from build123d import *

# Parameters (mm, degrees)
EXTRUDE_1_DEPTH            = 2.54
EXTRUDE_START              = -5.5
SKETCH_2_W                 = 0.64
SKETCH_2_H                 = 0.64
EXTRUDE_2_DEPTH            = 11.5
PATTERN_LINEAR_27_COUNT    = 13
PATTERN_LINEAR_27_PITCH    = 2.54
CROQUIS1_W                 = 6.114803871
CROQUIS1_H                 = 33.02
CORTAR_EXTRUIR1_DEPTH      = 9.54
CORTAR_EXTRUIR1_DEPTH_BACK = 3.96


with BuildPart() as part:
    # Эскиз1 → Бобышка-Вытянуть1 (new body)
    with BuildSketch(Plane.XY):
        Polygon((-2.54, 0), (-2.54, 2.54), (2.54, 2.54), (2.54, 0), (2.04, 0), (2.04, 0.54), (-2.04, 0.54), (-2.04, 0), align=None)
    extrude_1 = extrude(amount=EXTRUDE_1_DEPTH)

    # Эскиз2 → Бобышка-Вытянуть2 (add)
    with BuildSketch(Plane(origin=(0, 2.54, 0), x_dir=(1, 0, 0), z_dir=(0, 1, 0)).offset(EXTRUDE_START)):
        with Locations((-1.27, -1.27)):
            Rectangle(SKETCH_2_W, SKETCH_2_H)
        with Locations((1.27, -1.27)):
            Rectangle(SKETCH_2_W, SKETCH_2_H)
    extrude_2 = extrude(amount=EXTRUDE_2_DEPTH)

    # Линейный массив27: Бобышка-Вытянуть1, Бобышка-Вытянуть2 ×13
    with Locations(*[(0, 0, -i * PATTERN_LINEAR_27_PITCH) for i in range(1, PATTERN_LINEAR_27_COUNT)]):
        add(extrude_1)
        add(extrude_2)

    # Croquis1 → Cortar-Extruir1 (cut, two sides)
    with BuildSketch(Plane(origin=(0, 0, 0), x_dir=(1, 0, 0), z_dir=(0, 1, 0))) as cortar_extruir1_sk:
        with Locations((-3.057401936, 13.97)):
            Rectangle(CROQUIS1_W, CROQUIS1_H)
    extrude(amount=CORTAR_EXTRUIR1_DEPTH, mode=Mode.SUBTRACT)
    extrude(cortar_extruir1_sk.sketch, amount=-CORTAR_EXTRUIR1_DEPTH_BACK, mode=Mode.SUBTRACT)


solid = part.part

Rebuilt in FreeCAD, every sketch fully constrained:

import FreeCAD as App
import Part
import Sketcher

V = App.Vector
Q = App.Units.Quantity


def add_polygon(sketch, points):
    """Adds a closed chain of lines whose ends are joined by coincident constraints."""
    first, n = sketch.GeometryCount, len(points)
    for a, b in zip(points, points[1:] + points[:1]):
        sketch.addGeometry(Part.LineSegment(App.Vector(*a, 0), App.Vector(*b, 0)), False)
    for i in range(n):
        sketch.addConstraint(Sketcher.Constraint("Coincident", first + i, 2, first + (i + 1) % n, 1))

doc = App.newDocument("Part")
params = doc.addObject("Spreadsheet::Sheet", "Params")
for row, (alias, value) in enumerate([
    ("sketch1_width", "0.2 in"),
    ("sketch1_height", "0.1 in"),
    ("pad1_length", "0.1 in"),
    ("pad2_length", "11.5 mm"),
    ("linearpattern_pitch", "0.1 in"),
    ("sketch3_height", "1.3 in"),
], start=1):
    params.set(f"A{row}", alias)
    params.set(f"B{row}", "=" + value)
    params.setAlias(f"B{row}", alias)

body = doc.addObject("PartDesign::Body", "Body")

sketch1 = body.newObject("Sketcher::SketchObject", "Sketch")
sketch1.AttachmentSupport = (doc.getObject("XY_Plane"), [""])
sketch1.MapMode = "FlatFace"
add_polygon(sketch1, [(-2.54, 2.54), (-2.54, 0), (-2.04, 0), (-2.04, 0.54), (2.04, 0.54), (2.04, 0), (2.54, 0), (2.54, 2.54)])
sketch1.addConstraint(Sketcher.Constraint("Vertical", 0))
sketch1.addConstraint(Sketcher.Constraint("Horizontal", 1))
sketch1.addConstraint(Sketcher.Constraint("Vertical", 2))
sketch1.addConstraint(Sketcher.Constraint("Horizontal", 3))
sketch1.addConstraint(Sketcher.Constraint("Vertical", 4))
sketch1.addConstraint(Sketcher.Constraint("Horizontal", 5))
sketch1.addConstraint(Sketcher.Constraint("Vertical", 6))
sketch1.addConstraint(Sketcher.Constraint("Horizontal", 7))
sketch1.addConstraint(Sketcher.Constraint("Symmetric", 1, 2, 4, 2, -1, 1))
sketch1.addConstraint(Sketcher.Constraint("Symmetric", 0, 2, 5, 2, -2))
sketch1.addConstraint(Sketcher.Constraint("DistanceX", 7, 2, 7, 1, Q("0.2 in")))
sketch1.addConstraint(Sketcher.Constraint("DistanceY", 0, 2, 0, 1, Q("0.1 in")))
sketch1.addConstraint(Sketcher.Constraint("DistanceX", 1, 1, 1, 2, 0.5))
sketch1.addConstraint(Sketcher.Constraint("DistanceY", 2, 1, 2, 2, 0.54))
sketch1.setExpression("Constraints[18]", "Params.sketch1_width")
sketch1.setExpression("Constraints[19]", "Params.sketch1_height")
pad1 = body.newObject("PartDesign::Pad", "Pad")
pad1.Profile = sketch1
pad1.setExpression("Length", "Params.pad1_length")

sketch2 = body.newObject("Sketcher::SketchObject", "Sketch001")
sketch2.AttachmentSupport = (doc.getObject("XZ_Plane"), [""])
sketch2.MapMode = "FlatFace"
sketch2.AttachmentOffset = App.Placement(V(0, 0, 2.96), App.Rotation())
add_polygon(sketch2, [(-1.59, 0.95), (-1.59, 1.59), (-0.95, 1.59), (-0.95, 0.95)])
add_polygon(sketch2, [(0.95, 0.95), (0.95, 1.59), (1.59, 1.59), (1.59, 0.95)])
sketch2.addConstraint(Sketcher.Constraint("Vertical", 0))
sketch2.addConstraint(Sketcher.Constraint("Horizontal", 1))
sketch2.addConstraint(Sketcher.Constraint("Vertical", 2))
sketch2.addConstraint(Sketcher.Constraint("Horizontal", 3))
sketch2.addConstraint(Sketcher.Constraint("Vertical", 4))
sketch2.addConstraint(Sketcher.Constraint("Horizontal", 5))
sketch2.addConstraint(Sketcher.Constraint("Vertical", 6))
sketch2.addConstraint(Sketcher.Constraint("Horizontal", 7))
sketch2.addConstraint(Sketcher.Constraint("Symmetric", 1, 2, 4, 2, -2))
sketch2.addConstraint(Sketcher.Constraint("Symmetric", 3, 2, 6, 2, -2))
sketch2.addConstraint(Sketcher.Constraint("Equal", 7, 0))
sketch2.addConstraint(Sketcher.Constraint("DistanceX", 0, 2, 4, 2, Q("0.1 in")))
sketch2.addConstraint(Sketcher.Constraint("DistanceX", 1, 1, 1, 2, 0.64))
sketch2.addConstraint(Sketcher.Constraint("DistanceY", -1, 1, 0, 2, 1.59))
pad2 = body.newObject("PartDesign::Pad", "Pad001")
pad2.Profile = sketch2
pad2.setExpression("Length", "Params.pad2_length")
pad2.Reversed = True
doc.recompute()

linearpattern = body.newObject("PartDesign::LinearPattern", "LinearPattern")
linearpattern.Originals = [pad1, pad2]
linearpattern.Direction = (doc.getObject("Z_Axis"), [""])
linearpattern.Mode = "offset"
linearpattern.setExpression("Offset", "Params.linearpattern_pitch")
linearpattern.Occurrences = 13
linearpattern.Reversed = True
body.Tip = linearpattern

sketch3 = body.newObject("Sketcher::SketchObject", "Sketch002")
sketch3.AttachmentSupport = (doc.getObject("XZ_Plane"), [""])
sketch3.MapMode = "FlatFace"
add_polygon(sketch3, [(-6.114804, -30.48), (-6.114804, 2.54), (0, 2.54), (0, -30.48)])
sketch3.addConstraint(Sketcher.Constraint("Vertical", 0))
sketch3.addConstraint(Sketcher.Constraint("Horizontal", 1))
sketch3.addConstraint(Sketcher.Constraint("Vertical", 2))
sketch3.addConstraint(Sketcher.Constraint("Horizontal", 3))
sketch3.addConstraint(Sketcher.Constraint("PointOnObject", 1, 2, -2))
sketch3.addConstraint(Sketcher.Constraint("DistanceY", 0, 1, 0, 2, Q("1.3 in")))
sketch3.addConstraint(Sketcher.Constraint("DistanceY", -1, 1, 0, 2, Q("0.1 in")))
sketch3.addConstraint(Sketcher.Constraint("DistanceX", 1, 1, 1, 2, 6.114804))
sketch3.setExpression("Constraints[9]", "Params.sketch3_height")
pocket1 = body.newObject("PartDesign::Pocket", "Pocket")
pocket1.Profile = sketch3
pocket1.Type = "ThroughAll"
pocket1.Midplane = True

doc.recompute()
